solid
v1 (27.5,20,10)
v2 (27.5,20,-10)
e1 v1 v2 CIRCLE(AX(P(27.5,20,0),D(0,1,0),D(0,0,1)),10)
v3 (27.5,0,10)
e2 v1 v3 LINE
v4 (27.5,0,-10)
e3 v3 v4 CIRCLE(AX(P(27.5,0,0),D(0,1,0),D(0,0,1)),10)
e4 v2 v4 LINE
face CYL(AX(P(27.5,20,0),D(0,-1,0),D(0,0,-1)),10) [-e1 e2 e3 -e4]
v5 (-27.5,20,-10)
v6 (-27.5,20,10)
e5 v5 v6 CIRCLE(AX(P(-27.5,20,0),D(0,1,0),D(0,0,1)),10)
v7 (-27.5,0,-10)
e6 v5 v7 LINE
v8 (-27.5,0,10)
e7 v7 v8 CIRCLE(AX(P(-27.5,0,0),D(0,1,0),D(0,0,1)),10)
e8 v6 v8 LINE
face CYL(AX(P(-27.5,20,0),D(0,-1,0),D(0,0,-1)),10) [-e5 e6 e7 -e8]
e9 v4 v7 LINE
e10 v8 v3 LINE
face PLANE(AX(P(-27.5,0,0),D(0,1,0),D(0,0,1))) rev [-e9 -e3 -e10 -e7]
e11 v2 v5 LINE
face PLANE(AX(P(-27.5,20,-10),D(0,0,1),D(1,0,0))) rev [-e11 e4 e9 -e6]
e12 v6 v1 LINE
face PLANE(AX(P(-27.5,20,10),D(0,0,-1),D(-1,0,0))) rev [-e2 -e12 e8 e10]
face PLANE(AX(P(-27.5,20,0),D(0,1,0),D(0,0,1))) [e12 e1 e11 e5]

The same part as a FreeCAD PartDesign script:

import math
import FreeCAD as App
import Part
import Sketcher
from FreeCAD import Vector
Q = App.Units.Quantity

doc = App.newDocument("Part")
params = doc.addObject("Spreadsheet::Sheet", "Params")
for row, (alias, value) in enumerate([
    ("sketch1_radius", "10 mm"),
    ("sketch1_width", "55 mm"),
    ("pad1_length", "20 mm"),
], start=1):
    params.set(f"A{row}", alias)
    params.set(f"B{row}", "=" + value)
    params.setAlias(f"B{row}", alias)

body = doc.addObject("PartDesign::Body", "Body")

# Sketch on XZ plane
sketch1 = doc.addObject("Sketcher::SketchObject", "Sketch")
body.addObject(sketch1)
sketch1.AttachmentSupport = (doc.XZ_Plane, [""])
sketch1.MapMode = "FlatFace"
sketch1.addGeometry([
    Part.LineSegment(Vector(27.5, -10, 0), Vector(-27.5, -10, 0)),
    Part.ArcOfCircle(Part.Circle(Vector(-27.5, 0, 0), Vector(0, 0, 1), 10), math.radians(90), math.radians(270)),
    Part.LineSegment(Vector(-27.5, 10, 0), Vector(27.5, 10, 0)),
    Part.ArcOfCircle(Part.Circle(Vector(27.5, 0, 0), Vector(0, 0, 1), 10), math.radians(-90), math.radians(90)),
], False)
sketch1.addConstraint([
    Sketcher.Constraint("Tangent", 0, 2, 1, 2),
    Sketcher.Constraint("Tangent", 1, 1, 2, 1),
    Sketcher.Constraint("Tangent", 2, 2, 3, 2),
    Sketcher.Constraint("Tangent", 3, 1, 0, 1),
    Sketcher.Constraint("Horizontal", 0),
    Sketcher.Constraint("Horizontal", 2),
    Sketcher.Constraint("Symmetric", 1, 3, 3, 3, -1, 1),
    Sketcher.Constraint("Radius", 1, Q("10 mm")),
    Sketcher.Constraint("DistanceX", 0, 2, 0, 1, Q("55 mm")),
])
sketch1.setExpression("Constraints[7]", "Params.sketch1_radius")
sketch1.setExpression("Constraints[8]", "Params.sketch1_width")
pad1 = doc.addObject("PartDesign::Pad", "Pad")
body.addObject(pad1)
pad1.Profile = sketch1
pad1.setExpression("Length", "Params.pad1_length")
pad1.Reversed = True

doc.recompute()
